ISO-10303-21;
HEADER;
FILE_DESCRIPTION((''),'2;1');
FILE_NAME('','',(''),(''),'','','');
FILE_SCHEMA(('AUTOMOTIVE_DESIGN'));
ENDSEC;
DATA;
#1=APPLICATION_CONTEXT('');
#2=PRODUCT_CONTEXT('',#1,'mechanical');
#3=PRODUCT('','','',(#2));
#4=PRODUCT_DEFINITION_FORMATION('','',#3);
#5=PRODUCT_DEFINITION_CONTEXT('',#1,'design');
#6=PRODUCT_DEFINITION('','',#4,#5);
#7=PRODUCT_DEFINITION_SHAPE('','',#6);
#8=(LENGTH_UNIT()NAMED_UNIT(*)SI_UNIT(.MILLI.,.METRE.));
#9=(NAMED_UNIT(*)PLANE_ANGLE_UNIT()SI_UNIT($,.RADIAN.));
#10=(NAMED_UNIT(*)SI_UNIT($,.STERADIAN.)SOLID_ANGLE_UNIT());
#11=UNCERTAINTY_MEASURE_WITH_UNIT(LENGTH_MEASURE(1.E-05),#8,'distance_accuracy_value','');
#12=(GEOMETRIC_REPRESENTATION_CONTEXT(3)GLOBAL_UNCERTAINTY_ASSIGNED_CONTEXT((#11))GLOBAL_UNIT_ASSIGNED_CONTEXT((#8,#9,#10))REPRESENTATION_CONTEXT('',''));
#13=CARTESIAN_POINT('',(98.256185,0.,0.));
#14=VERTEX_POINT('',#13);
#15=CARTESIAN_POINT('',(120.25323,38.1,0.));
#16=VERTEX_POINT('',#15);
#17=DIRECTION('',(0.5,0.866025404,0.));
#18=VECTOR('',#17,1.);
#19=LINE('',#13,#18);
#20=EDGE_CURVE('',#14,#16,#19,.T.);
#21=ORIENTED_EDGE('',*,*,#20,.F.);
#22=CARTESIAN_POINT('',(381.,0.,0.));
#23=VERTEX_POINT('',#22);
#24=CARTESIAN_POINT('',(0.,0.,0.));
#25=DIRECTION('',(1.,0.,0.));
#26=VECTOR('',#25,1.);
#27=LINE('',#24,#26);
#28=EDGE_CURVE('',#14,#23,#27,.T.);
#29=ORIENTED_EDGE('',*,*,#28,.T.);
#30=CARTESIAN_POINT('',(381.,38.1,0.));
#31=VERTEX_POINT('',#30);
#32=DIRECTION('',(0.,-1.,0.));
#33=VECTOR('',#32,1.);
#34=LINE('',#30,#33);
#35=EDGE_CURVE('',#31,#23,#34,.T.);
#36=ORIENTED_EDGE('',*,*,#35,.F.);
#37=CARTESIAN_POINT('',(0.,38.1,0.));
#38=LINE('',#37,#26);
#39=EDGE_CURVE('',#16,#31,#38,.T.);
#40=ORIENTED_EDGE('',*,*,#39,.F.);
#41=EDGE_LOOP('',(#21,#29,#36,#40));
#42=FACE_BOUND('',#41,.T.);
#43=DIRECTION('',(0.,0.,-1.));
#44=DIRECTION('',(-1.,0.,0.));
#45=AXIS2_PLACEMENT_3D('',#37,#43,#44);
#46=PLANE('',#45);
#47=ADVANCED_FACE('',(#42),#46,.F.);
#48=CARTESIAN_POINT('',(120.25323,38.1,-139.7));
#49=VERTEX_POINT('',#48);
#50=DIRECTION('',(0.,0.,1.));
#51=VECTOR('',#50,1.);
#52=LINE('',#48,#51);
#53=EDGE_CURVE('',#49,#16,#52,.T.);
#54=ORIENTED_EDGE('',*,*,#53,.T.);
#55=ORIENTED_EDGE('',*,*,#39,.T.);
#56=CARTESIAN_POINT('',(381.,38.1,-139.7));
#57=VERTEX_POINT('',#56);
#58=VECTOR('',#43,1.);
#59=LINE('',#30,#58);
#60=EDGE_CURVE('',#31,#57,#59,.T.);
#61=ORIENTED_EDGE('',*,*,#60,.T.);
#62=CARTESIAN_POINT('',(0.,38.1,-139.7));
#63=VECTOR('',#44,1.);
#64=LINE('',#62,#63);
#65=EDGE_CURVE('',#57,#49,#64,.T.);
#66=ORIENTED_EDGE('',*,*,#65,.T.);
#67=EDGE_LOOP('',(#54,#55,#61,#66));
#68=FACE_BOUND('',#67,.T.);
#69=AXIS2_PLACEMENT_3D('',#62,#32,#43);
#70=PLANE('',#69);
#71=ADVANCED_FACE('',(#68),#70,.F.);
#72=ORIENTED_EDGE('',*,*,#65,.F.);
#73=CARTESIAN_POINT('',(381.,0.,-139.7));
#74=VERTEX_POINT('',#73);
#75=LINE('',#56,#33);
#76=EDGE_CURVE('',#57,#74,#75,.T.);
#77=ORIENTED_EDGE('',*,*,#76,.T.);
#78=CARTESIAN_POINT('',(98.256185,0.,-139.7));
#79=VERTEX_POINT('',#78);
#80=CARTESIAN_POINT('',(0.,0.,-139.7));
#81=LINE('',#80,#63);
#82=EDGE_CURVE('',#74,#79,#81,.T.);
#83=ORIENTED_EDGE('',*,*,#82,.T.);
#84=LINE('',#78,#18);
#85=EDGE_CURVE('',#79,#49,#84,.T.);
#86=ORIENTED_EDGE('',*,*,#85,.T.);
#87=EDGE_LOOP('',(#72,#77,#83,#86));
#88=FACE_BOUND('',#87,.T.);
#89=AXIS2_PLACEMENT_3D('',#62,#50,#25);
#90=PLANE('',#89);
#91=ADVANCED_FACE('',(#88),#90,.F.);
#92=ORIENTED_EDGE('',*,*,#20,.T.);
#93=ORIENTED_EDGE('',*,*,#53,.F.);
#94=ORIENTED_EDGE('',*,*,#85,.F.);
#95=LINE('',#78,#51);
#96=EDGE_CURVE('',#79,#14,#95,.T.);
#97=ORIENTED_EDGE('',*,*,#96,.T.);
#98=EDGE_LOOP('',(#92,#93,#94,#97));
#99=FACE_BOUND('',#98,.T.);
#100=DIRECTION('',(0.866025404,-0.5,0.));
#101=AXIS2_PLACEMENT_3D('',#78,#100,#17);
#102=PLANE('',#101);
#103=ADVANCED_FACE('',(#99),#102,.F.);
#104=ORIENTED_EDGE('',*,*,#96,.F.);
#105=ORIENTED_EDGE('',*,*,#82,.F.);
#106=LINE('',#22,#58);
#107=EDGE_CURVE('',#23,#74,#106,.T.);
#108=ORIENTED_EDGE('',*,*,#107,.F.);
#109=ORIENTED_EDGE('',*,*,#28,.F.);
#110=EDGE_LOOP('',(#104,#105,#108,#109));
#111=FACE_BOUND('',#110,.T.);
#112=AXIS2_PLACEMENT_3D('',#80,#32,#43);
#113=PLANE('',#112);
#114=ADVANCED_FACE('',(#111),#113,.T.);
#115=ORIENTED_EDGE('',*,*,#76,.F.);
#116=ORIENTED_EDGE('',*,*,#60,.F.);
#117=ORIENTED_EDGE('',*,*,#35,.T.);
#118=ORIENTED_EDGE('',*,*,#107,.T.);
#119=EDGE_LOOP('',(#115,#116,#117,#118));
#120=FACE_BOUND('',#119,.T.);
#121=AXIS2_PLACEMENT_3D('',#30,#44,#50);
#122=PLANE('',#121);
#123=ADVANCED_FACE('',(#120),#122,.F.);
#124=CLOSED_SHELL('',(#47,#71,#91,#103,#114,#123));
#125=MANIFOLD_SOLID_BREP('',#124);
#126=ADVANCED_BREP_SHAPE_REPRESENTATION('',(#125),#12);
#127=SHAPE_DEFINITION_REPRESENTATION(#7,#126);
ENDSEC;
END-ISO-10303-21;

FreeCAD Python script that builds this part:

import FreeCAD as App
import Part
import Sketcher
from FreeCAD import Vector
Q = App.Units.Quantity

doc = App.newDocument("Part")
body = doc.addObject("PartDesign::Body", "Body")

# Sketch on XZ plane
sketch1 = body.newObject("Sketcher::SketchObject", "Sketch")
sketch1.AttachmentSupport = (doc.getObject("XZ_Plane"), [""])
sketch1.MapMode = "FlatFace"
sketch1.addGeometry([
    Part.LineSegment(Vector(0, -140, 0), Vector(0, 0, 0)),
    Part.LineSegment(Vector(0, 0, 0), Vector(381, 0, 0)),
    Part.LineSegment(Vector(381, 0, 0), Vector(381, -140, 0)),
    Part.LineSegment(Vector(381, -140, 0), Vector(0, -140, 0)),
], False)
sketch1.addConstraint([
    Sketcher.Constraint("Coincident", 0, 2, 1, 1),
    Sketcher.Constraint("Coincident", 1, 2, 2, 1),
    Sketcher.Constraint("Coincident", 2, 2, 3, 1),
    Sketcher.Constraint("Coincident", 3, 2, 0, 1),
    Sketcher.Constraint("Vertical", 0),
    Sketcher.Constraint("Horizontal", 1),
    Sketcher.Constraint("Vertical", 2),
    Sketcher.Constraint("Horizontal", 3),
    Sketcher.Constraint("Coincident", 0, 2, -1, 1),
    Sketcher.Constraint("DistanceX", 1, 1, 1, 2, Q("15 in")),
    Sketcher.Constraint("DistanceY", 0, 1, 0, 2, Q("5.5 in")),
])
pad1 = body.newObject("PartDesign::Pad", "Pad")
pad1.Profile = sketch1
pad1.Length = Q("1.5 in")
pad1.Reversed = True

# Sketch on XY plane
sketch2 = body.newObject("Sketcher::SketchObject", "Sketch001")
sketch2.AttachmentSupport = (doc.getObject("XY_Plane"), [""])
sketch2.MapMode = "FlatFace"
sketch2.addGeometry([
    Part.LineSegment(Vector(98, 0, 0), Vector(120, 38, 0)),
    Part.LineSegment(Vector(120, 38, 0), Vector(0, 38, 0)),
    Part.LineSegment(Vector(0, 38, 0), Vector(0, 0, 0)),
    Part.LineSegment(Vector(0, 0, 0), Vector(98, 0, 0)),
], False)
sketch2.addConstraint([
    Sketcher.Constraint("Coincident", 0, 2, 1, 1),
    Sketcher.Constraint("Coincident", 1, 2, 2, 1),
    Sketcher.Constraint("Coincident", 2, 2, 3, 1),
    Sketcher.Constraint("Coincident", 3, 2, 0, 1),
    Sketcher.Constraint("Horizontal", 1),
    Sketcher.Constraint("Vertical", 2),
    Sketcher.Constraint("Horizontal", 3),
    Sketcher.Constraint("Coincident", 2, 2, -1, 1),
    Sketcher.Constraint("DistanceY", 2, 2, 2, 1, Q("1.5 in")),
    Sketcher.Constraint("Angle", 0, Q("60 deg")),
    Sketcher.Constraint("DistanceX", 1, 2, 1, 1, 120.25323),
])
pocket1 = body.newObject("PartDesign::Pocket", "Pocket")
pocket1.Profile = sketch2
pocket1.Type = "ThroughAll"

doc.recompute()
